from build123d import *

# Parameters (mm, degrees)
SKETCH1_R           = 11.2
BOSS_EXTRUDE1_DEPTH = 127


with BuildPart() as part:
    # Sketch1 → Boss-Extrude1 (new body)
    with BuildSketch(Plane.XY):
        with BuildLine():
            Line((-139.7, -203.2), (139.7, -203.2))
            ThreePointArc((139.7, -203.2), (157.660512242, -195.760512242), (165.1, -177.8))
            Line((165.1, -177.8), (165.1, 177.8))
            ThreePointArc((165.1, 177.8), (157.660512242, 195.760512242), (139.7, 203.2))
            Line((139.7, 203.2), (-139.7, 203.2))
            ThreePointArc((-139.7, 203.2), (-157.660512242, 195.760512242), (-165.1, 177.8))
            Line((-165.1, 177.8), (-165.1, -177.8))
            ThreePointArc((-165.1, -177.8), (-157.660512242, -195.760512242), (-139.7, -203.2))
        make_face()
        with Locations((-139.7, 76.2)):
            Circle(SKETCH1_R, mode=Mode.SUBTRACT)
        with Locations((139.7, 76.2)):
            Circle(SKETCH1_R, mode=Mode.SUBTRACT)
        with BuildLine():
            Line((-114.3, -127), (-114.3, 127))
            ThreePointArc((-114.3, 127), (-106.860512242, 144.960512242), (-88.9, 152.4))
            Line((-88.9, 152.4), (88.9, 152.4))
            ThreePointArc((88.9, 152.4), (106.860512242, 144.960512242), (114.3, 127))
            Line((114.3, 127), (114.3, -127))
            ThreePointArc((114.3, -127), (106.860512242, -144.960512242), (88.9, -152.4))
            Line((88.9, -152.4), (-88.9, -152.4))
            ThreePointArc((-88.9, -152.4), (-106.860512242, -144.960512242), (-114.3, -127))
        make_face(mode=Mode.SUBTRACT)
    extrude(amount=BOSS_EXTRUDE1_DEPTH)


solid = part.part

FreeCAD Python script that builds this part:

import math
import FreeCAD as App
import Part
import Sketcher

V = App.Vector
Q = App.Units.Quantity

doc = App.newDocument("Part")
body = doc.addObject("PartDesign::Body", "Body")

# Sketch on XY plane
sketch1 = body.newObject("Sketcher::SketchObject", "Sketch")
sketch1.AttachmentSupport = (doc.getObject("XY_Plane"), [""])
sketch1.MapMode = "FlatFace"
sketch1.addGeometry(Part.LineSegment(V(-140, -203, 0), V(140, -203, 0)), False)
sketch1.addGeometry(Part.ArcOfCircle(Part.Circle(V(140, -178, 0), V(0, 0, 1), 25), math.radians(-90), math.radians(0)), False)
sketch1.addGeometry(Part.LineSegment(V(165, -178, 0), V(165, 178, 0)), False)
sketch1.addGeometry(Part.ArcOfCircle(Part.Circle(V(140, 178, 0), V(0, 0, 1), 25), math.radians(0), math.radians(90)), False)
sketch1.addGeometry(Part.LineSegment(V(140, 203, 0), V(-140, 203, 0)), False)
sketch1.addGeometry(Part.ArcOfCircle(Part.Circle(V(-140, 178, 0), V(0, 0, 1), 25), math.radians(90), math.radians(180)), False)
sketch1.addGeometry(Part.LineSegment(V(-165, 178, 0), V(-165, -178, 0)), False)
sketch1.addGeometry(Part.ArcOfCircle(Part.Circle(V(-140, -178, 0), V(0, 0, 1), 25), math.radians(180), math.radians(270)), False)
sketch1.addGeometry(Part.Circle(V(-140, 76, 0), V(0, 0, 1), 11), False)
sketch1.addGeometry(Part.ArcOfCircle(Part.Circle(V(-89, -127, 0), V(0, 0, 1), 25), math.radians(180), math.radians(270)), False)
sketch1.addGeometry(Part.LineSegment(V(-114, -127, 0), V(-114, 127, 0)), False)
sketch1.addGeometry(Part.ArcOfCircle(Part.Circle(V(-89, 127, 0), V(0, 0, 1), 25), math.radians(90), math.radians(180)), False)
sketch1.addGeometry(Part.LineSegment(V(-89, 152, 0), V(89, 152, 0)), False)
sketch1.addGeometry(Part.ArcOfCircle(Part.Circle(V(89, 127, 0), V(0, 0, 1), 25), math.radians(0), math.radians(90)), False)
sketch1.addGeometry(Part.LineSegment(V(114, 127, 0), V(114, -127, 0)), False)
sketch1.addGeometry(Part.ArcOfCircle(Part.Circle(V(89, -127, 0), V(0, 0, 1), 25), math.radians(-90), math.radians(0)), False)
sketch1.addGeometry(Part.LineSegment(V(89, -152, 0), V(-89, -152, 0)), False)
sketch1.addGeometry(Part.Circle(V(140, 76, 0), V(0, 0, 1), 11), False)
sketch1.addConstraint(Sketcher.Constraint("Tangent", 0, 2, 1, 1))
sketch1.addConstraint(Sketcher.Constraint("Tangent", 1, 2, 2, 1))
sketch1.addConstraint(Sketcher.Constraint("Tangent", 2, 2, 3, 1))
sketch1.addConstraint(Sketcher.Constraint("Tangent", 3, 2, 4, 1))
sketch1.addConstraint(Sketcher.Constraint("Tangent", 4, 2, 5, 1))
sketch1.addConstraint(Sketcher.Constraint("Tangent", 5, 2, 6, 1))
sketch1.addConstraint(Sketcher.Constraint("Tangent", 6, 2, 7, 1))
sketch1.addConstraint(Sketcher.Constraint("Tangent", 7, 2, 0, 1))
sketch1.addConstraint(Sketcher.Constraint("Tangent", 9, 1, 10, 1))
sketch1.addConstraint(Sketcher.Constraint("Tangent", 10, 2, 11, 2))
sketch1.addConstraint(Sketcher.Constraint("Tangent", 11, 1, 12, 1))
sketch1.addConstraint(Sketcher.Constraint("Tangent", 12, 2, 13, 2))
sketch1.addConstraint(Sketcher.Constraint("Tangent", 13, 1, 14, 1))
sketch1.addConstraint(Sketcher.Constraint("Tangent", 14, 2, 15, 2))
sketch1.addConstraint(Sketcher.Constraint("Tangent", 15, 1, 16, 1))
sketch1.addConstraint(Sketcher.Constraint("Tangent", 16, 2, 9, 2))
sketch1.addConstraint(Sketcher.Constraint("Horizontal", 0))
sketch1.addConstraint(Sketcher.Constraint("Vertical", 2))
sketch1.addConstraint(Sketcher.Constraint("Horizontal", 4))
sketch1.addConstraint(Sketcher.Constraint("Vertical", 6))
sketch1.addConstraint(Sketcher.Constraint("Vertical", 10))
sketch1.addConstraint(Sketcher.Constraint("Horizontal", 12))
sketch1.addConstraint(Sketcher.Constraint("Vertical", 14))
sketch1.addConstraint(Sketcher.Constraint("Horizontal", 16))
sketch1.addConstraint(Sketcher.Constraint("Equal", 1, 3))
sketch1.addConstraint(Sketcher.Constraint("Equal", 3, 5))
sketch1.addConstraint(Sketcher.Constraint("Equal", 5, 7))
sketch1.addConstraint(Sketcher.Constraint("Equal", 7, 9))
sketch1.addConstraint(Sketcher.Constraint("Equal", 9, 11))
sketch1.addConstraint(Sketcher.Constraint("Equal", 11, 13))
sketch1.addConstraint(Sketcher.Constraint("Equal", 13, 15))
sketch1.addConstraint(Sketcher.Constraint("Equal", 8, 17))
sketch1.addConstraint(Sketcher.Constraint("Symmetric", 1, 3, 5, 3, -1, 1))
sketch1.addConstraint(Sketcher.Constraint("Symmetric", 9, 3, 13, 3, -1, 1))
sketch1.addConstraint(Sketcher.Constraint("Symmetric", 8, 3, 17, 3, -2))
sketch1.addConstraint(Sketcher.Constraint("Vertical", 7, 3, 8, 3))
sketch1.addConstraint(Sketcher.Constraint("Radius", 1, Q("1 in")))
sketch1.addConstraint(Sketcher.Constraint("DistanceX", 0, 1, 0, 2, Q("11 in")))
sketch1.addConstraint(Sketcher.Constraint("DistanceX", 12, 1, 12, 2, Q("7 in")))
sketch1.addConstraint(Sketcher.Constraint("DistanceY", 2, 1, 2, 2, Q("14 in")))
sketch1.addConstraint(Sketcher.Constraint("DistanceY", 10, 1, 10, 2, Q("10 in")))
sketch1.addConstraint(Sketcher.Constraint("DistanceY", -1, 1, 8, 3, Q("3 in")))
sketch1.addConstraint(Sketcher.Constraint("Diameter", 8, Q("22.4 mm")))
pad1 = body.newObject("PartDesign::Pad", "Pad")
pad1.Profile = sketch1
pad1.Length = Q("5 in")

doc.recompute()
